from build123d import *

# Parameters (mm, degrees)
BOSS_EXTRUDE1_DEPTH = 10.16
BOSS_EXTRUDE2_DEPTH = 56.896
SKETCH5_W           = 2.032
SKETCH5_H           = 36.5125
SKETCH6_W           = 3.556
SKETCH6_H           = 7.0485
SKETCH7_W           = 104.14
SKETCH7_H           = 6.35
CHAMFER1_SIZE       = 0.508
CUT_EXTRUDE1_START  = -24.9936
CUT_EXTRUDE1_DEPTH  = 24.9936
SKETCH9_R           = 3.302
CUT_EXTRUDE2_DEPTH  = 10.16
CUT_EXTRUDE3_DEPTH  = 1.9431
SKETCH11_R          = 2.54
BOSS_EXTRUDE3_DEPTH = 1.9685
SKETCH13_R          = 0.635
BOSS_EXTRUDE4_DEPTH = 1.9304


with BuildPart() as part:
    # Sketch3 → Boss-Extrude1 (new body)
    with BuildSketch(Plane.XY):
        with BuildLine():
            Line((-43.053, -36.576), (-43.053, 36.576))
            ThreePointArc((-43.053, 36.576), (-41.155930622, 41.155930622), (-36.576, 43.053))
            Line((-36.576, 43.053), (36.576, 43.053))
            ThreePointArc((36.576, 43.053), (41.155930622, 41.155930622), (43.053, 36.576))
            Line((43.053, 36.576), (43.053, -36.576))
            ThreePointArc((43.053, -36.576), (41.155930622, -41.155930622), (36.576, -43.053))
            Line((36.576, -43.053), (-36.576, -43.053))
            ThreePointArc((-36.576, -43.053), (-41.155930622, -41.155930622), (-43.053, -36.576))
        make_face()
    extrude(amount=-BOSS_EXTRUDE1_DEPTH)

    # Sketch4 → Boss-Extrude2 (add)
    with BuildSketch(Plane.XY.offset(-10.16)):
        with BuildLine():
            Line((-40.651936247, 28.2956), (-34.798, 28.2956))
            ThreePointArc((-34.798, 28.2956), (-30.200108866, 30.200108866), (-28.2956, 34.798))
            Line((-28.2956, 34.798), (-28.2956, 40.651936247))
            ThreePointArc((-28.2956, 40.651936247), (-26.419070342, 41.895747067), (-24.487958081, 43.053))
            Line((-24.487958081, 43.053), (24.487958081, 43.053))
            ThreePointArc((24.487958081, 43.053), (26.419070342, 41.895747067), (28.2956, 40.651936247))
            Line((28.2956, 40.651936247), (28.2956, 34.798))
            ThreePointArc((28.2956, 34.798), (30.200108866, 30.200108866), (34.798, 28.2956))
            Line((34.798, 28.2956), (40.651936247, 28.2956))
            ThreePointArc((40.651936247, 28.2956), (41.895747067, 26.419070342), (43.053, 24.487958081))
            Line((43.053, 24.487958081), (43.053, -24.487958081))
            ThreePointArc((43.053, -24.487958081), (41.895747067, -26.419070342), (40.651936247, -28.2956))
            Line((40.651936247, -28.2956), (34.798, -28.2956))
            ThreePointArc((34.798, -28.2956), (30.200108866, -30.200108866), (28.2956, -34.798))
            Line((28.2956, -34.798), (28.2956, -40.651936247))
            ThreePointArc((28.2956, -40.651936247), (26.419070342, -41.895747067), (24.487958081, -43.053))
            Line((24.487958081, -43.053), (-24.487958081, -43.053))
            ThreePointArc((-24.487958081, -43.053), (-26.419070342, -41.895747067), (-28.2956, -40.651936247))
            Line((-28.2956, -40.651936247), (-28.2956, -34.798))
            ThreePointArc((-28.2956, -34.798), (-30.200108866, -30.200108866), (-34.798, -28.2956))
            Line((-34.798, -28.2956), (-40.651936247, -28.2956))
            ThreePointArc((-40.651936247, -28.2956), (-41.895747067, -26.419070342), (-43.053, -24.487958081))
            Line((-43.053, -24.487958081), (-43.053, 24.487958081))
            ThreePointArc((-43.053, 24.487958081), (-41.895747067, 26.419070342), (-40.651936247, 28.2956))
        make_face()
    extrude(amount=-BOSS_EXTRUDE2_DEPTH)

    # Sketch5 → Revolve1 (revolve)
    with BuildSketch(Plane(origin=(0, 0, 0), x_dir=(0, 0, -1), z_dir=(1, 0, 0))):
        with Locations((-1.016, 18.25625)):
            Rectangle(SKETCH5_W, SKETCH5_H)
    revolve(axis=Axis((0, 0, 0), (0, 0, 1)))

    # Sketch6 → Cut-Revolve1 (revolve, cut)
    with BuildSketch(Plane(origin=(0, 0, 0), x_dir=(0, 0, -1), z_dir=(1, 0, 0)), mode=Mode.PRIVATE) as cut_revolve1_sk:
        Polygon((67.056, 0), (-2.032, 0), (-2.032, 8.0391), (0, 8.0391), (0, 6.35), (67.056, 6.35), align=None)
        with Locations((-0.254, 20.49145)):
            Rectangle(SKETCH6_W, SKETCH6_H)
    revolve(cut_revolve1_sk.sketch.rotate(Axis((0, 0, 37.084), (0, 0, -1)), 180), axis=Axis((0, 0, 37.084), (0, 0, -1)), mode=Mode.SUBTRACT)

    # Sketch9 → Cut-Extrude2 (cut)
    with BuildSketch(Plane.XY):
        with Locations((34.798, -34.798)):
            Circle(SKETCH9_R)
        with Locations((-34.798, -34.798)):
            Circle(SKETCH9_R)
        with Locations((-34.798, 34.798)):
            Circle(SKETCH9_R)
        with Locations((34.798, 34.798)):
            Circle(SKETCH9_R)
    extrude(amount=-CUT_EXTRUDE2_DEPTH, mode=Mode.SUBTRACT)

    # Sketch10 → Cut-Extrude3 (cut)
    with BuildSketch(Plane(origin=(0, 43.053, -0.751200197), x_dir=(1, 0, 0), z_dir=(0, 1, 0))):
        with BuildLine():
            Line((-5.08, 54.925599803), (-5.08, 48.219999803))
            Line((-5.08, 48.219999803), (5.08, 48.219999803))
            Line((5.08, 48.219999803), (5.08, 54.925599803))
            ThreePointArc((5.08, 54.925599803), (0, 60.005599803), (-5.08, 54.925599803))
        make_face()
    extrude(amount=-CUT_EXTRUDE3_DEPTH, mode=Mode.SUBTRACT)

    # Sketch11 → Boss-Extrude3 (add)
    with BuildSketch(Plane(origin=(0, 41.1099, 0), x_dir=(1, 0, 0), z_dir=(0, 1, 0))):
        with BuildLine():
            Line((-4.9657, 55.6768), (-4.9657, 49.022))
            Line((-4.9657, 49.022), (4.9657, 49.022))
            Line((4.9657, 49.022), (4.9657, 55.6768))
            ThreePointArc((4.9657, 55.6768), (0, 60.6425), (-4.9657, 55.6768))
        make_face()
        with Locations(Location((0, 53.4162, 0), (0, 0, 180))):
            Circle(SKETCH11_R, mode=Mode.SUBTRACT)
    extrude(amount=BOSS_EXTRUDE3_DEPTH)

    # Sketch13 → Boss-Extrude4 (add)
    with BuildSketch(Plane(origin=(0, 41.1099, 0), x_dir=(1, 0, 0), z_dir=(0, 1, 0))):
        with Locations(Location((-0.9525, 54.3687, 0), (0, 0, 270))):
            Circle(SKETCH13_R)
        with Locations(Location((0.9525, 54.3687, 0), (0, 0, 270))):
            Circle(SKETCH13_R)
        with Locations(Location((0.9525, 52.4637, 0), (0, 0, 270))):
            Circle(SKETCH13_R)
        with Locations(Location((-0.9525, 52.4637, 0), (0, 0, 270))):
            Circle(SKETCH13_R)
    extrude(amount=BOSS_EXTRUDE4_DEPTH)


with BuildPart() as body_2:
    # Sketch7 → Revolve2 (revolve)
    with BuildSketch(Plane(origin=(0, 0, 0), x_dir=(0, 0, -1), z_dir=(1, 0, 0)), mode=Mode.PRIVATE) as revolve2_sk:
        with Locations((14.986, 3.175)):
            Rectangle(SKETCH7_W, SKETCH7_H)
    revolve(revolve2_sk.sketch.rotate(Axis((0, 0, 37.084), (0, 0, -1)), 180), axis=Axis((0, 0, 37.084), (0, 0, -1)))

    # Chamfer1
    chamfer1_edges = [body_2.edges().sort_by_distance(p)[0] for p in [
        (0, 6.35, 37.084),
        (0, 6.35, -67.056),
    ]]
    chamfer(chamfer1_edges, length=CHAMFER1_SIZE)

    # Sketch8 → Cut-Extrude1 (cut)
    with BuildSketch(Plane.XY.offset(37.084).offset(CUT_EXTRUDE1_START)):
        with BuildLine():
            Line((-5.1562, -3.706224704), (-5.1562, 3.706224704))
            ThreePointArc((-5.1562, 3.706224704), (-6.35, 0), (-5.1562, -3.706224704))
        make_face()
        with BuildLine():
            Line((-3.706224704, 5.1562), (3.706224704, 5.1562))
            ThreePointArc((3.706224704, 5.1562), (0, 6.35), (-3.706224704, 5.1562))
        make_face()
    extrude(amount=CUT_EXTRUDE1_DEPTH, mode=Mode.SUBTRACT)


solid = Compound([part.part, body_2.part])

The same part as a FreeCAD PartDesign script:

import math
import FreeCAD as App
import Part
import Sketcher

V = App.Vector
Q = App.Units.Quantity


def edges_at(feature, points):
    """Names of the edges that pass closest to the given points."""
    edges = feature.Shape.Edges
    near = lambda p: min(range(len(edges)), key=lambda i: edges[i].distToShape(Part.Vertex(*p))[0])
    return sorted({f"Edge{near(p) + 1}" for p in points})


def add_polygon(sketch, points):
    """Adds a closed chain of lines whose ends are joined by coincident constraints."""
    first, n = sketch.GeometryCount, len(points)
    for a, b in zip(points, points[1:] + points[:1]):
        sketch.addGeometry(Part.LineSegment(App.Vector(*a, 0), App.Vector(*b, 0)), False)
    for i in range(n):
        sketch.addConstraint(Sketcher.Constraint("Coincident", first + i, 2, first + (i + 1) % n, 1))

doc = App.newDocument("Part")
body = doc.addObject("PartDesign::Body", "Body")

# Sketch on XY plane
sketch1 = body.newObject("Sketcher::SketchObject", "Sketch")
sketch1.AttachmentSupport = (doc.getObject("XY_Plane"), [""])
sketch1.MapMode = "FlatFace"
sketch1.addGeometry([
    Part.LineSegment(V(-43, 37, 0), V(-43, -37, 0)),  # 0
    Part.ArcOfCircle(Part.Circle(V(-37, -37, 0), V(0, 0, 1), 6), math.radians(180), math.radians(270)),  # 1
    Part.LineSegment(V(-37, -43, 0), V(37, -43, 0)),  # 2
    Part.ArcOfCircle(Part.Circle(V(37, -37, 0), V(0, 0, 1), 6), math.radians(-90), math.radians(0)),  # 3
    Part.LineSegment(V(43, -37, 0), V(43, 37, 0)),  # 4
    Part.ArcOfCircle(Part.Circle(V(37, 37, 0), V(0, 0, 1), 6), math.radians(0), math.radians(90)),  # 5
    Part.LineSegment(V(37, 43, 0), V(-37, 43, 0)),  # 6
    Part.ArcOfCircle(Part.Circle(V(-37, 37, 0), V(0, 0, 1), 6), math.radians(90), math.radians(180)),  # 7
], False)
sketch1.addConstraint([
    Sketcher.Constraint("Tangent", 0, 2, 1, 1),
    Sketcher.Constraint("Tangent", 1, 2, 2, 1),
    Sketcher.Constraint("Tangent", 2, 2, 3, 1),
    Sketcher.Constraint("Tangent", 3, 2, 4, 1),
    Sketcher.Constraint("Tangent", 4, 2, 5, 1),
    Sketcher.Constraint("Tangent", 5, 2, 6, 1),
    Sketcher.Constraint("Tangent", 6, 2, 7, 1),
    Sketcher.Constraint("Tangent", 7, 2, 0, 1),
    Sketcher.Constraint("Vertical", 0),
    Sketcher.Constraint("Horizontal", 2),
    Sketcher.Constraint("Vertical", 4),
    Sketcher.Constraint("Horizontal", 6),
    Sketcher.Constraint("Equal", 1, 3),
    Sketcher.Constraint("Equal", 3, 5),
    Sketcher.Constraint("Equal", 5, 7),
    Sketcher.Constraint("Symmetric", 1, 3, 5, 3, -1, 1),
    Sketcher.Constraint("Equal", 6, 0),
    Sketcher.Constraint("Radius", 1, Q("0.255 in")),
    Sketcher.Constraint("DistanceX", 2, 1, 2, 2, Q("2.88 in")),
])
pad1 = body.newObject("PartDesign::Pad", "Pad")
pad1.Profile = sketch1
pad1.Length = Q("0.4 in")
pad1.Reversed = True

# Sketch on XY plane
sketch2 = body.newObject("Sketcher::SketchObject", "Sketch001")
sketch2.AttachmentSupport = (doc.getObject("XY_Plane"), [""])
sketch2.MapMode = "FlatFace"
sketch2.AttachmentOffset = App.Placement(V(0, 0, -0.4 * 25.4), App.Rotation())
sketch2.addGeometry([
    Part.LineSegment(V(-34.8, 28.3, 0), V(-40.7, 28.3, 0)),  # 0
    Part.ArcOfCircle(Part.Circle(V(0, 0, 0), V(0, 0, 1), 49.5), math.radians(145.16), math.radians(150.37)),  # 1
    Part.LineSegment(V(-43.1, 24.5, 0), V(-43.1, -24.5, 0)),  # 2
    Part.ArcOfCircle(Part.Circle(V(0, 0, 0), V(0, 0, 1), 49.5), math.radians(-150.37), math.radians(-145.16)),  # 3
    Part.LineSegment(V(-40.7, -28.3, 0), V(-34.8, -28.3, 0)),  # 4
    Part.ArcOfCircle(Part.Circle(V(-34.8, -34.8, 0), V(0, 0, 1), 6.5), math.radians(0), math.radians(90)),  # 5
    Part.LineSegment(V(-28.3, -34.8, 0), V(-28.3, -40.7, 0)),  # 6
    Part.ArcOfCircle(Part.Circle(V(0, 0, 0), V(0, 0, 1), 49.5), math.radians(-124.84), math.radians(-119.63)),  # 7
    Part.LineSegment(V(-24.5, -43.1, 0), V(24.5, -43.1, 0)),  # 8
    Part.ArcOfCircle(Part.Circle(V(0, 0, 0), V(0, 0, 1), 49.5), math.radians(-60.37), math.radians(-55.16)),  # 9
    Part.LineSegment(V(28.3, -40.7, 0), V(28.3, -34.8, 0)),  # 10
    Part.ArcOfCircle(Part.Circle(V(34.8, -34.8, 0), V(0, 0, 1), 6.5), math.radians(90), math.radians(180)),  # 11
    Part.LineSegment(V(34.8, -28.3, 0), V(40.7, -28.3, 0)),  # 12
    Part.ArcOfCircle(Part.Circle(V(0, 0, 0), V(0, 0, 1), 49.5), math.radians(-34.84), math.radians(-29.63)),  # 13
    Part.LineSegment(V(43.1, -24.5, 0), V(43.1, 24.5, 0)),  # 14
    Part.ArcOfCircle(Part.Circle(V(0, 0, 0), V(0, 0, 1), 49.5), math.radians(29.63), math.radians(34.84)),  # 15
    Part.LineSegment(V(40.7, 28.3, 0), V(34.8, 28.3, 0)),  # 16
    Part.ArcOfCircle(Part.Circle(V(34.8, 34.8, 0), V(0, 0, 1), 6.5), math.radians(180), math.radians(270)),  # 17
    Part.LineSegment(V(28.3, 34.8, 0), V(28.3, 40.7, 0)),  # 18
    Part.ArcOfCircle(Part.Circle(V(0, 0, 0), V(0, 0, 1), 49.5), math.radians(55.16), math.radians(60.37)),  # 19
    Part.LineSegment(V(24.5, 43.1, 0), V(-24.5, 43.1, 0)),  # 20
    Part.ArcOfCircle(Part.Circle(V(0, 0, 0), V(0, 0, 1), 49.5), math.radians(119.63), math.radians(124.84)),  # 21
    Part.LineSegment(V(-28.3, 40.7, 0), V(-28.3, 34.8, 0)),  # 22
    Part.ArcOfCircle(Part.Circle(V(-34.8, 34.8, 0), V(0, 0, 1), 6.5), math.radians(-90), math.radians(0)),  # 23
], False)
sketch2.addConstraint([
    Sketcher.Constraint("Coincident", 0, 2, 1, 1),
    Sketcher.Constraint("Coincident", 1, 2, 2, 1),
    Sketcher.Constraint("Coincident", 2, 2, 3, 1),
    Sketcher.Constraint("Coincident", 3, 2, 4, 1),
    Sketcher.Constraint("Tangent", 4, 2, 5, 2),
    Sketcher.Constraint("Tangent", 5, 1, 6, 1),
    Sketcher.Constraint("Coincident", 6, 2, 7, 1),
    Sketcher.Constraint("Coincident", 7, 2, 8, 1),
    Sketcher.Constraint("Coincident", 8, 2, 9, 1),
    Sketcher.Constraint("Coincident", 9, 2, 10, 1),
    Sketcher.Constraint("Tangent", 10, 2, 11, 2),
    Sketcher.Constraint("Tangent", 11, 1, 12, 1),
    Sketcher.Constraint("Coincident", 12, 2, 13, 1),
    Sketcher.Constraint("Coincident", 13, 2, 14, 1),
    Sketcher.Constraint("Coincident", 14, 2, 15, 1),
    Sketcher.Constraint("Coincident", 15, 2, 16, 1),
    Sketcher.Constraint("Tangent", 16, 2, 17, 2),
    Sketcher.Constraint("Tangent", 17, 1, 18, 1),
    Sketcher.Constraint("Coincident", 18, 2, 19, 1),
    Sketcher.Constraint("Coincident", 19, 2, 20, 1),
    Sketcher.Constraint("Coincident", 20, 2, 21, 1),
    Sketcher.Constraint("Coincident", 21, 2, 22, 1),
    Sketcher.Constraint("Tangent", 22, 2, 23, 2),
    Sketcher.Constraint("Tangent", 23, 1, 0, 1),
    Sketcher.Constraint("Horizontal", 0),
    Sketcher.Constraint("Vertical", 2),
    Sketcher.Constraint("Horizontal", 4),
    Sketcher.Constraint("Vertical", 6),
    Sketcher.Constraint("Horizontal", 8),
    Sketcher.Constraint("Vertical", 10),
    Sketcher.Constraint("Horizontal", 12),
    Sketcher.Constraint("Vertical", 14),
    Sketcher.Constraint("Horizontal", 16),
    Sketcher.Constraint("Vertical", 18),
    Sketcher.Constraint("Horizontal", 20),
    Sketcher.Constraint("Vertical", 22),
    Sketcher.Constraint("Coincident", 1, 3, -1, 1),
    Sketcher.Constraint("Coincident", 3, 3, -1, 1),
    Sketcher.Constraint("Coincident", 7, 3, -1, 1),
    Sketcher.Constraint("Coincident", 9, 3, -1, 1),
    Sketcher.Constraint("Coincident", 13, 3, -1, 1),
    Sketcher.Constraint("Coincident", 15, 3, -1, 1),
    Sketcher.Constraint("Coincident", 19, 3, -1, 1),
    Sketcher.Constraint("Coincident", 21, 3, -1, 1),
    Sketcher.Constraint("Equal", 1, 3),
    Sketcher.Constraint("Equal", 3, 7),
    Sketcher.Constraint("Equal", 7, 9),
    Sketcher.Constraint("Equal", 5, 11),
    Sketcher.Constraint("Equal", 9, 13),
    Sketcher.Constraint("Equal", 13, 15),
    Sketcher.Constraint("Equal", 11, 17),
    Sketcher.Constraint("Equal", 15, 19),
    Sketcher.Constraint("Equal", 19, 21),
    Sketcher.Constraint("Equal", 17, 23),
    Sketcher.Constraint("Symmetric", 5, 3, 17, 3, -1, 1),
    Sketcher.Constraint("Symmetric", 11, 3, 23, 3, -1, 1),
    Sketcher.Constraint("Symmetric", 5, 3, 11, 3, -2),
    Sketcher.Constraint("Horizontal", 2, 2, 13, 2),
    Sketcher.Constraint("Vertical", 8, 2, 19, 2),
    Sketcher.Constraint("Equal", 20, 2),
    Sketcher.Constraint("Equal", 16, 6),
    Sketcher.Constraint("Radius", 1, Q("1.95 in")),
    Sketcher.Constraint("Radius", 5, Q("0.256 in")),
    Sketcher.Constraint("DistanceX", 5, 3, -1, 1, Q("1.37 in")),
    Sketcher.Constraint("DistanceX", 1, 2, -1, 1, Q("1.695 in")),
])
pad2 = body.newObject("PartDesign::Pad", "Pad001")
pad2.Profile = sketch2
pad2.Length = Q("2.24 in")
pad2.Reversed = True

# Sketch on YZ plane
sketch3 = body.newObject("Sketcher::SketchObject", "Sketch002")
sketch3.AttachmentSupport = (doc.getObject("YZ_Plane"), [""])
sketch3.MapMode = "FlatFace"
add_polygon(sketch3, [(36.5, 2), (0, 2), (0, 0), (36.5, 0)])  # lines 0-3
sketch3.addConstraint([
    Sketcher.Constraint("Horizontal", 0),
    Sketcher.Constraint("Vertical", 1),
    Sketcher.Constraint("Horizontal", 2),
    Sketcher.Constraint("Vertical", 3),
    Sketcher.Constraint("Coincident", 1, 2, -1, 1),
    Sketcher.Constraint("DistanceY", 1, 2, 1, 1, Q("0.08 in")),
    Sketcher.Constraint("DistanceX", 0, 2, 0, 1, Q("1.4375 in")),
])
revolution = body.newObject("PartDesign::Revolution", "Revolution")
revolution.Profile = sketch3
revolution.ReferenceAxis = (sketch3, ["V_Axis"])
revolution.Angle = 360

# Sketch on YZ plane
sketch4 = body.newObject("Sketcher::SketchObject", "Sketch003")
sketch4.AttachmentSupport = (doc.getObject("YZ_Plane"), [""])
sketch4.MapMode = "FlatFace"
add_polygon(sketch4, [(0, 2), (0, -67.1), (6.3, -67.1), (6.3, 0), (8, 0), (8, 2)])  # lines 0-5
add_polygon(sketch4, [(24, 2), (17, 2), (17, -1.5), (24, -1.5)])  # lines 6-9
sketch4.addConstraint([
    Sketcher.Constraint("Vertical", 0),
    Sketcher.Constraint("Horizontal", 1),
    Sketcher.Constraint("Vertical", 2),
    Sketcher.Constraint("Horizontal", 3),
    Sketcher.Constraint("Vertical", 4),
    Sketcher.Constraint("Horizontal", 5),
    Sketcher.Constraint("Horizontal", 6),
    Sketcher.Constraint("Vertical", 7),
    Sketcher.Constraint("Horizontal", 8),
    Sketcher.Constraint("Vertical", 9),
    Sketcher.Constraint("PointOnObject", 0, 2, -2),
    Sketcher.Constraint("PointOnObject", 2, 2, -1),
    Sketcher.Constraint("Horizontal", 5, 2, 6, 2),
    Sketcher.Constraint("DistanceX", 1, 1, 1, 2, Q("0.25 in")),
    Sketcher.Constraint("DistanceY", 0, 2, 0, 1, Q("2.72 in")),
    Sketcher.Constraint("DistanceY", 2, 1, 2, 2, Q("2.64 in")),
    Sketcher.Constraint("DistanceY", 7, 2, 7, 1, Q("0.14 in")),
    Sketcher.Constraint("DistanceX", 3, 1, 3, 2, Q("0.0665 in")),
    Sketcher.Constraint("DistanceX", 6, 2, 6, 1, Q("0.2775 in")),
    Sketcher.Constraint("DistanceX", -1, 1, 6, 2, Q("0.668 in")),
])
groove = body.newObject("PartDesign::Groove", "Groove")
groove.Profile = sketch4
groove.ReferenceAxis = (sketch4, ["V_Axis"])
groove.Angle = 360

# Sketch on XY plane
sketch5 = body.newObject("Sketcher::SketchObject", "Sketch004")
sketch5.AttachmentSupport = (doc.getObject("XY_Plane"), [""])
sketch5.MapMode = "FlatFace"
sketch5.addGeometry([
    Part.Circle(V(34.8, -34.8, 0), V(0, 0, 1), 3.3),
    Part.Circle(V(-34.8, -34.8, 0), V(0, 0, 1), 3.3),
    Part.Circle(V(-34.8, 34.8, 0), V(0, 0, 1), 3.3),
    Part.Circle(V(34.8, 34.8, 0), V(0, 0, 1), 3.3),
], False)
sketch5.addConstraint([
    Sketcher.Constraint("Equal", 0, 1),
    Sketcher.Constraint("Equal", 1, 2),
    Sketcher.Constraint("Equal", 2, 3),
    Sketcher.Constraint("Symmetric", 0, 3, 2, 3, -1, 1),
    Sketcher.Constraint("Symmetric", 1, 3, 3, 3, -1, 1),
    Sketcher.Constraint("Symmetric", 0, 3, 1, 3, -2),
    Sketcher.Constraint("Diameter", 0, Q("0.26 in")),
    Sketcher.Constraint("DistanceX", -1, 1, 0, 3, Q("1.37 in")),
    Sketcher.Constraint("DistanceY", 0, 3, -1, 1, Q("1.37 in")),
])
pocket1 = body.newObject("PartDesign::Pocket", "Pocket")
pocket1.Profile = sketch5
pocket1.Length = Q("0.4 in")

# Sketch on XZ plane
sketch6 = body.newObject("Sketcher::SketchObject", "Sketch005")
sketch6.AttachmentSupport = (doc.getObject("XZ_Plane"), [""])
sketch6.MapMode = "FlatFace"
sketch6.AttachmentOffset = App.Placement(V(0, 0, -1.695 * 25.4), App.Rotation())
sketch6.addGeometry([
    Part.LineSegment(V(-5, -56, 0), V(-5, -49, 0)),
    Part.LineSegment(V(-5, -49, 0), V(5, -49, 0)),
    Part.LineSegment(V(5, -49, 0), V(5, -56, 0)),
    Part.ArcOfCircle(Part.Circle(V(0, -56, 0), V(0, 0, 1), 5), math.radians(180), math.radians(360)),
], False)
sketch6.addConstraint([
    Sketcher.Constraint("Coincident", 0, 2, 1, 1),
    Sketcher.Constraint("Coincident", 1, 2, 2, 1),
    Sketcher.Constraint("Tangent", 2, 2, 3, 2),
    Sketcher.Constraint("Tangent", 3, 1, 0, 1),
    Sketcher.Constraint("Vertical", 0),
    Sketcher.Constraint("Horizontal", 1),
    Sketcher.Constraint("Vertical", 2),
    Sketcher.Constraint("PointOnObject", 3, 3, -2),
    Sketcher.Constraint("Radius", 3, Q("0.2 in")),
    Sketcher.Constraint("DistanceY", 0, 1, 0, 2, Q("0.264 in")),
    Sketcher.Constraint("DistanceY", 3, 3, -1, 1, Q("2.192 in")),
])
pocket2 = body.newObject("PartDesign::Pocket", "Pocket001")
pocket2.Profile = sketch6
pocket2.Length = Q("0.0765 in")
pocket2.Reversed = True

# Sketch on XZ plane
sketch7 = body.newObject("Sketcher::SketchObject", "Sketch006")
sketch7.AttachmentSupport = (doc.getObject("XZ_Plane"), [""])
sketch7.MapMode = "FlatFace"
sketch7.AttachmentOffset = App.Placement(V(0, 0, -1.6185 * 25.4), App.Rotation())
sketch7.addGeometry([
    Part.LineSegment(V(-5, -55.7, 0), V(-5, -49, 0)),  # 0
    Part.LineSegment(V(-5, -49, 0), V(5, -49, 0)),  # 1
    Part.LineSegment(V(5, -49, 0), V(5, -55.7, 0)),  # 2
    Part.ArcOfCircle(Part.Circle(V(0, -55.7, 0), V(0, 0, 1), 5), math.radians(180), math.radians(360)),  # 3
    Part.Circle(V(0, -53.4, 0), V(0, 0, 1), 2.5),  # 4
], False)
sketch7.addConstraint([
    Sketcher.Constraint("Coincident", 0, 2, 1, 1),
    Sketcher.Constraint("Coincident", 1, 2, 2, 1),
    Sketcher.Constraint("Tangent", 2, 2, 3, 2),
    Sketcher.Constraint("Tangent", 3, 1, 0, 1),
    Sketcher.Constraint("Vertical", 0),
    Sketcher.Constraint("Horizontal", 1),
    Sketcher.Constraint("Vertical", 2),
    Sketcher.Constraint("PointOnObject", 3, 3, -2),
    Sketcher.Constraint("PointOnObject", 4, 3, -2),
    Sketcher.Constraint("Diameter", 4, Q("0.2 in")),
    Sketcher.Constraint("Radius", 3, Q("0.1955 in")),
    Sketcher.Constraint("DistanceY", 0, 1, 0, 2, Q("0.262 in")),
    Sketcher.Constraint("DistanceY", 0, 2, -1, 1, Q("1.93 in")),
    Sketcher.Constraint("DistanceY", 4, 3, -1, 1, Q("2.103 in")),
])
pad3 = body.newObject("PartDesign::Pad", "Pad002")
pad3.Profile = sketch7
pad3.Length = Q("0.0775 in")
pad3.Reversed = True

# Sketch on XZ plane
sketch8 = body.newObject("Sketcher::SketchObject", "Sketch007")
sketch8.AttachmentSupport = (doc.getObject("XZ_Plane"), [""])
sketch8.MapMode = "FlatFace"
sketch8.AttachmentOffset = App.Placement(V(0, 0, -1.6185 * 25.4), App.Rotation())
sketch8.addGeometry([
    Part.Circle(V(-1, -54.4, 0), V(0, 0, 1), 0.6),
    Part.Circle(V(1, -54.4, 0), V(0, 0, 1), 0.6),
    Part.Circle(V(1, -52.5, 0), V(0, 0, 1), 0.6),
    Part.Circle(V(-1, -52.5, 0), V(0, 0, 1), 0.6),
], False)
sketch8.addConstraint([
    Sketcher.Constraint("Equal", 0, 1),
    Sketcher.Constraint("Equal", 1, 2),
    Sketcher.Constraint("Equal", 2, 3),
    Sketcher.Constraint("Symmetric", 0, 3, 1, 3, -2),
    Sketcher.Constraint("Symmetric", 2, 3, 3, 3, -2),
    Sketcher.Constraint("Vertical", 1, 3, 2, 3),
    Sketcher.Constraint("Diameter", 0, Q("0.05 in")),
    Sketcher.Constraint("DistanceX", 0, 3, 1, 3, Q("0.075 in")),
    Sketcher.Constraint("DistanceY", 1, 3, 2, 3, Q("0.075 in")),
    Sketcher.Constraint("DistanceY", 0, 3, -1, 1, Q("2.1405 in")),
])
pad4 = body.newObject("PartDesign::Pad", "Pad003")
pad4.Profile = sketch8
pad4.Length = Q("0.076 in")
pad4.Reversed = True
body2 = doc.addObject("PartDesign::Body", "Body001")

# Sketch on YZ plane
sketch9 = body2.newObject("Sketcher::SketchObject", "Sketch008")
sketch9.AttachmentSupport = (doc.getObject("YZ_Plane001"), [""])
sketch9.MapMode = "FlatFace"
add_polygon(sketch9, [(6, 37), (0, 37), (0, -67), (6, -67)])  # lines 0-3
sketch9.addConstraint([
    Sketcher.Constraint("Horizontal", 0),
    Sketcher.Constraint("Vertical", 1),
    Sketcher.Constraint("Horizontal", 2),
    Sketcher.Constraint("Vertical", 3),
    Sketcher.Constraint("PointOnObject", 0, 2, -2),
    Sketcher.Constraint("DistanceY", 1, 2, 1, 1, Q("4.1 in")),
    Sketcher.Constraint("DistanceX", 0, 2, 0, 1, Q("0.25 in")),
    Sketcher.Constraint("DistanceY", -1, 1, 0, 2, Q("1.46 in")),
])
revolution2 = body2.newObject("PartDesign::Revolution", "Revolution001")
revolution2.Profile = sketch9
revolution2.ReferenceAxis = (sketch9, ["V_Axis"])
revolution2.Angle = 360
doc.recompute()

chamfer = body2.newObject("PartDesign::Chamfer", "Chamfer")
chamfer.Base = (revolution2, edges_at(revolution2, [(0, 6.35, 37.084), (0, 6.35, -67.056)]))
chamfer.Size = Q("0.02 in")

# Sketch on XY plane
sketch10 = body2.newObject("Sketcher::SketchObject", "Sketch009")
sketch10.AttachmentSupport = (doc.getObject("XY_Plane001"), [""])
sketch10.MapMode = "FlatFace"
sketch10.AttachmentOffset = App.Placement(V(0, 0, 0.476 * 25.4), App.Rotation())
sketch10.addGeometry([
    Part.LineSegment(V(-5, -4, 0), V(-5, 4, 0)),
    Part.ArcOfCircle(Part.Circle(V(0, 0, 0), V(0, 0, 1), 6), math.radians(144), math.radians(216)),
    Part.LineSegment(V(-4, 5, 0), V(4, 5, 0)),
    Part.ArcOfCircle(Part.Circle(V(0, 0, 0), V(0, 0, 1), 6), math.radians(54), math.radians(126)),
], False)
sketch10.addConstraint([
    Sketcher.Constraint("Coincident", 0, 1, 1, 2),
    Sketcher.Constraint("Coincident", 1, 1, 0, 2),
    Sketcher.Constraint("Coincident", 2, 1, 3, 2),
    Sketcher.Constraint("Coincident", 3, 1, 2, 2),
    Sketcher.Constraint("Vertical", 0),
    Sketcher.Constraint("Horizontal", 2),
    Sketcher.Constraint("Coincident", 1, 3, -1, 1),
    Sketcher.Constraint("Coincident", 3, 3, -1, 1),
    Sketcher.Constraint("Equal", 1, 3),
    Sketcher.Constraint("Equal", 2, 0),
    Sketcher.Constraint("Radius", 1, Q("0.25 in")),
    Sketcher.Constraint("DistanceX", 0, 1, -1, 1, Q("0.203 in")),
])
pocket3 = body2.newObject("PartDesign::Pocket", "Pocket002")
pocket3.Profile = sketch10
pocket3.Length = Q("0.984 in")
pocket3.Reversed = True

doc.recompute()
